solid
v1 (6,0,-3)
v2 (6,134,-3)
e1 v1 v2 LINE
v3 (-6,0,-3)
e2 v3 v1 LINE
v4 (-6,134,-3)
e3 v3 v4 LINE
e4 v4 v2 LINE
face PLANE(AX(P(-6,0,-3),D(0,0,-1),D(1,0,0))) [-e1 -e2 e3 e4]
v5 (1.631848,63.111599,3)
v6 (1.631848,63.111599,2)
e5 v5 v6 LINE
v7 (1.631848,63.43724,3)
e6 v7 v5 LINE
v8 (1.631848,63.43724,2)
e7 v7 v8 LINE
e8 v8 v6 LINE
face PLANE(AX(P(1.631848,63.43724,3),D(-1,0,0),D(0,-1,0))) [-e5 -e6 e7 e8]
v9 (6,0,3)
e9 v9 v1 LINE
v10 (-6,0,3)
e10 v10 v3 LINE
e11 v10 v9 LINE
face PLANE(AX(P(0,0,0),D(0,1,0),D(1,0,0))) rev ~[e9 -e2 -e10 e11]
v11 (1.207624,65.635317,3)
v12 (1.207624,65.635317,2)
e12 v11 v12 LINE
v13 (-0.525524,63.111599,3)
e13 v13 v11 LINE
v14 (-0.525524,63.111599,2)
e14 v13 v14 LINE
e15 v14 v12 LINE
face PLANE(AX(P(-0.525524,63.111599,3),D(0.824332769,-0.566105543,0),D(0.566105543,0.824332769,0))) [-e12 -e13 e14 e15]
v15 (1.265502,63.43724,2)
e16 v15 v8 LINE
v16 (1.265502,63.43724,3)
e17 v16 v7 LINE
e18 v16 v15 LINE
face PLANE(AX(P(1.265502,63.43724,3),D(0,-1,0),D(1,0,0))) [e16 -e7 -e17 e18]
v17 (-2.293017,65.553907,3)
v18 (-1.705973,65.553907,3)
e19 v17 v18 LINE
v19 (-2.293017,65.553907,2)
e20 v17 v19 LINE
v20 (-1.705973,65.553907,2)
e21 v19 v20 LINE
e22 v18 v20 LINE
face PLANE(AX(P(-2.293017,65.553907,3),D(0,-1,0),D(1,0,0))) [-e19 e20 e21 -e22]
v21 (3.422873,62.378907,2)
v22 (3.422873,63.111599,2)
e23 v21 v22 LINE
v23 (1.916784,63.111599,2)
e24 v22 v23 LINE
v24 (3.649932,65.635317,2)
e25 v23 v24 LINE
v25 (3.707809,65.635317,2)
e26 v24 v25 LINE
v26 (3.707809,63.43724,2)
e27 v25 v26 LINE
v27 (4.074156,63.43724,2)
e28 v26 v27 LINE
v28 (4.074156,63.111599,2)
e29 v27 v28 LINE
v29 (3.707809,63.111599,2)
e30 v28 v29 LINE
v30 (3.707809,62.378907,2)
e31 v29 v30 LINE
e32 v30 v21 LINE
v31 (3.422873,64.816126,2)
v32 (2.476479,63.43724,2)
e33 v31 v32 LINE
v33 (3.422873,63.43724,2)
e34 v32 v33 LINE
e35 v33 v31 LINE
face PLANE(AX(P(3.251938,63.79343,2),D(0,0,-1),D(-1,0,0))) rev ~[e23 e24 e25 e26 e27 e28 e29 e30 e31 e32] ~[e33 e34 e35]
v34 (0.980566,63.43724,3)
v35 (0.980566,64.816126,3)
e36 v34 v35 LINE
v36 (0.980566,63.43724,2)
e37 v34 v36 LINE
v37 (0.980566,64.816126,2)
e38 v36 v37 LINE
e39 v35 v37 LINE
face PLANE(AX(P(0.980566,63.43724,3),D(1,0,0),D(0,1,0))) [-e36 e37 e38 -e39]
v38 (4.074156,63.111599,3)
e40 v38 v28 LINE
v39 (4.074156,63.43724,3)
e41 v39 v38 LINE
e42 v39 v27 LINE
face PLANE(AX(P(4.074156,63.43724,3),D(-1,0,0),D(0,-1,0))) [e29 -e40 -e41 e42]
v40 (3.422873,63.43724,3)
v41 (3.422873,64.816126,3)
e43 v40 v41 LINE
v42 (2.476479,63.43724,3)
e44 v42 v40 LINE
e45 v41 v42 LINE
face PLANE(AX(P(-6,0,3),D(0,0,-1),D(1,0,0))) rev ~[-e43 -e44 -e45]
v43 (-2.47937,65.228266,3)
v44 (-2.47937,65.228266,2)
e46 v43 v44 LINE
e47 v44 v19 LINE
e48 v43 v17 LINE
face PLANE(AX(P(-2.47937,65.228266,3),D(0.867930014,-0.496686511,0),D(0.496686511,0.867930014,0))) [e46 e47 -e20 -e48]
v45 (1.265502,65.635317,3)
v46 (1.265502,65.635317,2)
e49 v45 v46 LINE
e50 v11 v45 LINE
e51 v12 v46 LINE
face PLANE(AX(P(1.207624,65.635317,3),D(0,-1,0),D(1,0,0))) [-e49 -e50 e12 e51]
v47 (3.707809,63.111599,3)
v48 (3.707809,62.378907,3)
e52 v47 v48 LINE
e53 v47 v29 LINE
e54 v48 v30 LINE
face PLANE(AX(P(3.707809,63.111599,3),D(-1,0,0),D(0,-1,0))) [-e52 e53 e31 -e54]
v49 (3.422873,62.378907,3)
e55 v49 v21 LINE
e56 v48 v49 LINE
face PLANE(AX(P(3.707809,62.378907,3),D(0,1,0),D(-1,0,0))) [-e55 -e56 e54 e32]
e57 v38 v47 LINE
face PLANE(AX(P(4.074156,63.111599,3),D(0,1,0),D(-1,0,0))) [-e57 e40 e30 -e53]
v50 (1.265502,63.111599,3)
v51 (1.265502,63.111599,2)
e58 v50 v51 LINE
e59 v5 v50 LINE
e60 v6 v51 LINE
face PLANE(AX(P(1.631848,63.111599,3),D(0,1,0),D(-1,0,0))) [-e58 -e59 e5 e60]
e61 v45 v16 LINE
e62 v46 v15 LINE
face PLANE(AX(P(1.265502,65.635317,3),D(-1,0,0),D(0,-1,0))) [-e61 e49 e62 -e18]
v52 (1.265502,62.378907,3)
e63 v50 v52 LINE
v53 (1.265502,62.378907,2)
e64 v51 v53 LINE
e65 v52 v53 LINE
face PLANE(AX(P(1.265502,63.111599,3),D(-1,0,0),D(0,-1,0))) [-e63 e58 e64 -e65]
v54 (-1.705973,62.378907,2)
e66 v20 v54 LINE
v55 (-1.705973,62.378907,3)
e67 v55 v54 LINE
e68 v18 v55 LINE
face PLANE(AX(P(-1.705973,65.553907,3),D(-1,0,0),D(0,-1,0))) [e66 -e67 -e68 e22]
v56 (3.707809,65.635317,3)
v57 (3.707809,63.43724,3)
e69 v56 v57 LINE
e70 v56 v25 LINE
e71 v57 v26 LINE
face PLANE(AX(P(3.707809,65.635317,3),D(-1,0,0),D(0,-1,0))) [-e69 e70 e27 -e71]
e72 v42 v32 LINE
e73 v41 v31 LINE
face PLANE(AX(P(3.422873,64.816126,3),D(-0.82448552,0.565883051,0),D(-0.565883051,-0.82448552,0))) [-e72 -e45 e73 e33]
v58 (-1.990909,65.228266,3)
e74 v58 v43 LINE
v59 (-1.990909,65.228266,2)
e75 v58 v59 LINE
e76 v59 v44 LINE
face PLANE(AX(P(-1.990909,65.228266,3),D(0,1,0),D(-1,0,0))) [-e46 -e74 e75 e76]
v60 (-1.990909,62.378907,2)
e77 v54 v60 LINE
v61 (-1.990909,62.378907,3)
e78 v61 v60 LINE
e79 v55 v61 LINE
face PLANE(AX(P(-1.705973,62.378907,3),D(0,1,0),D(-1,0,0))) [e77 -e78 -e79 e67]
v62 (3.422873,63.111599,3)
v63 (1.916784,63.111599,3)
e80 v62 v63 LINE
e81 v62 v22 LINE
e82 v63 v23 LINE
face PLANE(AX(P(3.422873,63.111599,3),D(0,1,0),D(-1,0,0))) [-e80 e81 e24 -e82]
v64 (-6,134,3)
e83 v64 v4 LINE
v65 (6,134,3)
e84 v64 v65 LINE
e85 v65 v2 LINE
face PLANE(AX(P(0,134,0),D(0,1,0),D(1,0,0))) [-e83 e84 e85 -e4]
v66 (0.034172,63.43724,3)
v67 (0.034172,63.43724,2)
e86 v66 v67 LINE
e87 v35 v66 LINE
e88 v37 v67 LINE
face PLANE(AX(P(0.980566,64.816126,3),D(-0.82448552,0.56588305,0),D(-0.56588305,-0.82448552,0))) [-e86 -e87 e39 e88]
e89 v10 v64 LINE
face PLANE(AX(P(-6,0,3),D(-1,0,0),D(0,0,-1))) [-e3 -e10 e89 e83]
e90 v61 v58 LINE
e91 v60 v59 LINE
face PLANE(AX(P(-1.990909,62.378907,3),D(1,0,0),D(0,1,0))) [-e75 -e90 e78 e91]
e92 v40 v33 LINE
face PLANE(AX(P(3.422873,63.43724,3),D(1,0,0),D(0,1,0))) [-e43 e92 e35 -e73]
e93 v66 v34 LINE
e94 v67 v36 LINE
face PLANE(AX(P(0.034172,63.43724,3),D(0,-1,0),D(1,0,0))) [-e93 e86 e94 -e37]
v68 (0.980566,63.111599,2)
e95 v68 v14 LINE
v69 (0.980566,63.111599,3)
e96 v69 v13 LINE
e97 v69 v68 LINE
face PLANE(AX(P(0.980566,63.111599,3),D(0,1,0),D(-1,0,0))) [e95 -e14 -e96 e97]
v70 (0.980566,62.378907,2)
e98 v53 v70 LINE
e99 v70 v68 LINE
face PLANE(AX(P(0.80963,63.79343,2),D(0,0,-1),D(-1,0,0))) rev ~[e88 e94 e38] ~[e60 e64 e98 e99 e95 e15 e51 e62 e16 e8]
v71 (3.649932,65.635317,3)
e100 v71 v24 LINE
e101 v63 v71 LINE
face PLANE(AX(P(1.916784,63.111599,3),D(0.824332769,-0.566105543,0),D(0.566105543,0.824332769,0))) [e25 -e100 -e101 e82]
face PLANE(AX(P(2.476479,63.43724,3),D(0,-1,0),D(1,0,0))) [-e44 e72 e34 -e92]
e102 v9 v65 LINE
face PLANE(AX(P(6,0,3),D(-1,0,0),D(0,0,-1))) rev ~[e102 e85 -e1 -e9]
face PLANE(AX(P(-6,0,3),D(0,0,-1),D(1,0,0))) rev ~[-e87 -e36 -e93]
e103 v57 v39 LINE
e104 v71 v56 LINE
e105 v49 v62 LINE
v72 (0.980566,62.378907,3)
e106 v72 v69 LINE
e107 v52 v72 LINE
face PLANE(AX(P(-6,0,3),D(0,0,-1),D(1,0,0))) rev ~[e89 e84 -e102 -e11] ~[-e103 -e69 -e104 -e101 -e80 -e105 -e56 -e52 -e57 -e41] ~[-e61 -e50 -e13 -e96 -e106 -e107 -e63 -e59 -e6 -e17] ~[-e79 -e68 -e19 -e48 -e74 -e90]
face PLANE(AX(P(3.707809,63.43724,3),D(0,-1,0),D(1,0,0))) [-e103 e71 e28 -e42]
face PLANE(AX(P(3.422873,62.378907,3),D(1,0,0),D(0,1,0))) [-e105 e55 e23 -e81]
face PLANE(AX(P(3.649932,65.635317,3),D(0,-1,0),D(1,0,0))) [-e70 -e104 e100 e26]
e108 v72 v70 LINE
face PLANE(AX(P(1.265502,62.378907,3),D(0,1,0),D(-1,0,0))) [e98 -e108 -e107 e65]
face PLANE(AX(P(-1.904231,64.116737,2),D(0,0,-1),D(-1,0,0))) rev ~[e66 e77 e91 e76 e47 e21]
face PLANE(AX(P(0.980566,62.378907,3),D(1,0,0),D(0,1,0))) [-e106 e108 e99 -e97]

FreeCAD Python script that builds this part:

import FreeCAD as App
import Part
import Sketcher
Q = App.Units.Quantity

doc = App.newDocument("Part")
params = doc.addObject("Spreadsheet::Sheet", "Params")
for row, (alias, value) in enumerate([
    ("sketch1_width", "12 mm"),
    ("sketch1_height", "6 mm"),
    ("pad1_length", "134 mm"),
    ("pocket1_length", "1 mm"),
], start=1):
    params.set(f"A{row}", alias)
    params.set(f"B{row}", "=" + value)
    params.setAlias(f"B{row}", alias)

body = doc.addObject("PartDesign::Body", "Body")

# Sketch on XZ plane
sketch1 = body.newObject("Sketcher::SketchObject", "Sketch")
sketch1.AttachmentSupport = (doc.getObject("XZ_Plane"), [""])
sketch1.MapMode = "FlatFace"
sketch1.addGeometry([
    Part.LineSegment(App.Vector(-6, -3, 0), App.Vector(-6, 3, 0)),
    Part.LineSegment(App.Vector(-6, 3, 0), App.Vector(6, 3, 0)),
    Part.LineSegment(App.Vector(6, 3, 0), App.Vector(6, -3, 0)),
    Part.LineSegment(App.Vector(6, -3, 0), App.Vector(-6, -3, 0)),
], False)
sketch1.addConstraint([
    Sketcher.Constraint("Coincident", 0, 2, 1, 1),
    Sketcher.Constraint("Coincident", 1, 2, 2, 1),
    Sketcher.Constraint("Coincident", 2, 2, 3, 1),
    Sketcher.Constraint("Coincident", 3, 2, 0, 1),
    Sketcher.Constraint("Vertical", 0),
    Sketcher.Constraint("Horizontal", 1),
    Sketcher.Constraint("Vertical", 2),
    Sketcher.Constraint("Horizontal", 3),
    Sketcher.Constraint("Symmetric", 0, 2, 2, 2, -1, 1),
    Sketcher.Constraint("DistanceX", 1, 1, 1, 2, Q("12 mm")),
    Sketcher.Constraint("DistanceY", 0, 1, 0, 2, Q("6 mm")),
])
sketch1.setExpression("Constraints[9]", "Params.sketch1_width")
sketch1.setExpression("Constraints[10]", "Params.sketch1_height")
pad1 = body.newObject("PartDesign::Pad", "Pad")
pad1.Profile = sketch1
pad1.setExpression("Length", "Params.pad1_length")
pad1.Reversed = True

# Sketch on XY plane
sketch2 = body.newObject("Sketcher::SketchObject", "Sketch001")
sketch2.AttachmentSupport = (doc.getObject("XY_Plane"), [""])
sketch2.MapMode = "FlatFace"
sketch2.AttachmentOffset = App.Placement(App.Vector(0, 0, 3), App.Rotation())
sketch2.addGeometry([
    Part.LineSegment(App.Vector(-1.71, 65.55, 0), App.Vector(-2.29, 65.55, 0)),  # 0
    Part.LineSegment(App.Vector(-2.29, 65.55, 0), App.Vector(-2.48, 65.23, 0)),  # 1
    Part.LineSegment(App.Vector(-2.48, 65.23, 0), App.Vector(-1.99, 65.23, 0)),  # 2
    Part.LineSegment(App.Vector(-1.99, 65.23, 0), App.Vector(-1.99, 62.38, 0)),  # 3
    Part.LineSegment(App.Vector(-1.99, 62.38, 0), App.Vector(-1.71, 62.38, 0)),  # 4
    Part.LineSegment(App.Vector(-1.71, 62.38, 0), App.Vector(-1.71, 65.55, 0)),  # 5
    Part.LineSegment(App.Vector(1.27, 65.64, 0), App.Vector(1.21, 65.64, 0)),  # 6
    Part.LineSegment(App.Vector(1.21, 65.64, 0), App.Vector(-0.53, 63.11, 0)),  # 7
    Part.LineSegment(App.Vector(-0.53, 63.11, 0), App.Vector(0.98, 63.11, 0)),  # 8
    Part.LineSegment(App.Vector(0.98, 63.11, 0), App.Vector(0.98, 62.38, 0)),  # 9
    Part.LineSegment(App.Vector(0.98, 62.38, 0), App.Vector(1.27, 62.38, 0)),  # 10
    Part.LineSegment(App.Vector(1.27, 62.38, 0), App.Vector(1.27, 63.11, 0)),  # 11
    Part.LineSegment(App.Vector(1.27, 63.11, 0), App.Vector(1.63, 63.11, 0)),  # 12
    Part.LineSegment(App.Vector(1.63, 63.11, 0), App.Vector(1.63, 63.44, 0)),  # 13
    Part.LineSegment(App.Vector(1.63, 63.44, 0), App.Vector(1.27, 63.44, 0)),  # 14
    Part.LineSegment(App.Vector(1.27, 63.44, 0), App.Vector(1.27, 65.64, 0)),  # 15
    Part.LineSegment(App.Vector(0.98, 63.44, 0), App.Vector(0.03, 63.44, 0)),  # 16
    Part.LineSegment(App.Vector(0.03, 63.44, 0), App.Vector(0.98, 64.82, 0)),  # 17
    Part.LineSegment(App.Vector(0.98, 64.82, 0), App.Vector(0.98, 63.44, 0)),  # 18
    Part.LineSegment(App.Vector(3.71, 65.64, 0), App.Vector(3.65, 65.64, 0)),  # 19
    Part.LineSegment(App.Vector(3.65, 65.64, 0), App.Vector(1.92, 63.11, 0)),  # 20
    Part.LineSegment(App.Vector(1.92, 63.11, 0), App.Vector(3.42, 63.11, 0)),  # 21
    Part.LineSegment(App.Vector(3.42, 63.11, 0), App.Vector(3.42, 62.38, 0)),  # 22
    Part.LineSegment(App.Vector(3.42, 62.38, 0), App.Vector(3.71, 62.38, 0)),  # 23
    Part.LineSegment(App.Vector(3.71, 62.38, 0), App.Vector(3.71, 63.11, 0)),  # 24
    Part.LineSegment(App.Vector(3.71, 63.11, 0), App.Vector(4.07, 63.11, 0)),  # 25
    Part.LineSegment(App.Vector(4.07, 63.11, 0), App.Vector(4.07, 63.44, 0)),  # 26
    Part.LineSegment(App.Vector(4.07, 63.44, 0), App.Vector(3.71, 63.44, 0)),  # 27
    Part.LineSegment(App.Vector(3.71, 63.44, 0), App.Vector(3.71, 65.64, 0)),  # 28
    Part.LineSegment(App.Vector(3.42, 63.44, 0), App.Vector(2.48, 63.44, 0)),  # 29
    Part.LineSegment(App.Vector(2.48, 63.44, 0), App.Vector(3.42, 64.82, 0)),  # 30
    Part.LineSegment(App.Vector(3.42, 64.82, 0), App.Vector(3.42, 63.44, 0)),  # 31
], False)
sketch2.addConstraint([
    Sketcher.Constraint("Coincident", 0, 2, 1, 1),
    Sketcher.Constraint("Coincident", 1, 2, 2, 1),
    Sketcher.Constraint("Coincident", 2, 2, 3, 1),
    Sketcher.Constraint("Coincident", 3, 2, 4, 1),
    Sketcher.Constraint("Coincident", 4, 2, 5, 1),
    Sketcher.Constraint("Coincident", 5, 2, 0, 1),
    Sketcher.Constraint("Coincident", 6, 2, 7, 1),
    Sketcher.Constraint("Coincident", 7, 2, 8, 1),
    Sketcher.Constraint("Coincident", 8, 2, 9, 1),
    Sketcher.Constraint("Coincident", 9, 2, 10, 1),
    Sketcher.Constraint("Coincident", 10, 2, 11, 1),
    Sketcher.Constraint("Coincident", 11, 2, 12, 1),
    Sketcher.Constraint("Coincident", 12, 2, 13, 1),
    Sketcher.Constraint("Coincident", 13, 2, 14, 1),
    Sketcher.Constraint("Coincident", 14, 2, 15, 1),
    Sketcher.Constraint("Coincident", 15, 2, 6, 1),
    Sketcher.Constraint("Coincident", 16, 2, 17, 1),
    Sketcher.Constraint("Coincident", 17, 2, 18, 1),
    Sketcher.Constraint("Coincident", 18, 2, 16, 1),
    Sketcher.Constraint("Coincident", 19, 2, 20, 1),
    Sketcher.Constraint("Coincident", 20, 2, 21, 1),
    Sketcher.Constraint("Coincident", 21, 2, 22, 1),
    Sketcher.Constraint("Coincident", 22, 2, 23, 1),
    Sketcher.Constraint("Coincident", 23, 2, 24, 1),
    Sketcher.Constraint("Coincident", 24, 2, 25, 1),
    Sketcher.Constraint("Coincident", 25, 2, 26, 1),
    Sketcher.Constraint("Coincident", 26, 2, 27, 1),
    Sketcher.Constraint("Coincident", 27, 2, 28, 1),
    Sketcher.Constraint("Coincident", 28, 2, 19, 1),
    Sketcher.Constraint("Coincident", 29, 2, 30, 1),
    Sketcher.Constraint("Coincident", 30, 2, 31, 1),
    Sketcher.Constraint("Coincident", 31, 2, 29, 1),
    Sketcher.Constraint("Horizontal", 0),
    Sketcher.Constraint("Horizontal", 2),
    Sketcher.Constraint("Vertical", 3),
    Sketcher.Constraint("Horizontal", 4),
    Sketcher.Constraint("Vertical", 5),
    Sketcher.Constraint("Horizontal", 6),
    Sketcher.Constraint("Horizontal", 8),
    Sketcher.Constraint("Vertical", 9),
    Sketcher.Constraint("Horizontal", 10),
    Sketcher.Constraint("Vertical", 11),
    Sketcher.Constraint("Horizontal", 12),
    Sketcher.Constraint("Vertical", 13),
    Sketcher.Constraint("Horizontal", 14),
    Sketcher.Constraint("Vertical", 15),
    Sketcher.Constraint("Horizontal", 16),
    Sketcher.Constraint("Vertical", 18),
    Sketcher.Constraint("Horizontal", 19),
    Sketcher.Constraint("Horizontal", 21),
    Sketcher.Constraint("Vertical", 22),
    Sketcher.Constraint("Horizontal", 23),
    Sketcher.Constraint("Vertical", 24),
    Sketcher.Constraint("Horizontal", 25),
    Sketcher.Constraint("Vertical", 26),
    Sketcher.Constraint("Horizontal", 27),
    Sketcher.Constraint("Vertical", 28),
    Sketcher.Constraint("Horizontal", 29),
    Sketcher.Constraint("Vertical", 31),
    Sketcher.Constraint("Parallel", 7, 20),
    Sketcher.Constraint("Parallel", 17, 30),
    Sketcher.Constraint("Horizontal", 4, 2, 9, 2),
    Sketcher.Constraint("Horizontal", 8, 2, 11, 2),
    Sketcher.Constraint("Horizontal", 14, 2, 16, 2),
    Sketcher.Constraint("Horizontal", 15, 2, 19, 2),
    Sketcher.Constraint("Horizontal", 12, 2, 20, 2),
    Sketcher.Constraint("Horizontal", 10, 2, 22, 2),
    Sketcher.Constraint("Horizontal", 21, 2, 24, 2),
    Sketcher.Constraint("Horizontal", 18, 2, 26, 2),
    Sketcher.Constraint("Horizontal", 27, 2, 29, 2),
    Sketcher.Constraint("Horizontal", 17, 2, 30, 2),
    Sketcher.Constraint("Vertical", 11, 2, 14, 2),
    Sketcher.Constraint("Vertical", 9, 2, 17, 2),
    Sketcher.Constraint("Vertical", 24, 2, 27, 2),
    Sketcher.Constraint("Vertical", 22, 2, 30, 2),
    Sketcher.Constraint("Equal", 4, 10),
    Sketcher.Constraint("Equal", 6, 19),
    Sketcher.Constraint("Equal", 8, 21),
    Sketcher.Constraint("Equal", 14, 25),
    Sketcher.Constraint("DistanceY", 5, 1, 5, 2, Q("3.175 mm")),
    Sketcher.Constraint("DistanceX", 2, 1, 2, 2, Q("0.488462 mm")),
    Sketcher.Constraint("DistanceX", 8, 1, 8, 2, Q("1.50609 mm")),
    Sketcher.Constraint("DistanceY", 3, 2, 3, 1, Q("2.849359 mm")),
    Sketcher.Constraint("DistanceY", 13, 1, 13, 2, Q("0.325641 mm")),
    Sketcher.Constraint("DistanceY", -1, 1, 7, 2, Q("63.111599 mm")),
    Sketcher.Constraint("DistanceX", -1, 1, 10, 2, Q("1.265502 mm")),
    Sketcher.Constraint("Distance", 7, Q("3.061528 mm")),
    Sketcher.Constraint("Distance", 17, Q("1.67242 mm")),
    Sketcher.Constraint("DistanceX", 0, 2, 0, 1, Q("0.587044 mm")),
    Sketcher.Constraint("DistanceX", 4, 1, 4, 2, Q("0.284936 mm")),
    Sketcher.Constraint("DistanceX", 6, 2, 6, 1, Q("0.057878 mm")),
    Sketcher.Constraint("DistanceX", 12, 1, 12, 2, Q("0.366346 mm")),
    Sketcher.Constraint("DistanceX", 16, 2, 16, 1, Q("0.946394 mm")),
    Sketcher.Constraint("DistanceY", 9, 2, 9, 1, Q("0.732692 mm")),
    Sketcher.Constraint("DistanceX", 1, 2, -1, 1, Q("2.47937 mm")),
    Sketcher.Constraint("DistanceX", -1, 1, 19, 2, Q("3.649932 mm")),
])
pocket1 = body.newObject("PartDesign::Pocket", "Pocket")
pocket1.Profile = sketch2
pocket1.setExpression("Length", "Params.pocket1_length")

doc.recompute()
